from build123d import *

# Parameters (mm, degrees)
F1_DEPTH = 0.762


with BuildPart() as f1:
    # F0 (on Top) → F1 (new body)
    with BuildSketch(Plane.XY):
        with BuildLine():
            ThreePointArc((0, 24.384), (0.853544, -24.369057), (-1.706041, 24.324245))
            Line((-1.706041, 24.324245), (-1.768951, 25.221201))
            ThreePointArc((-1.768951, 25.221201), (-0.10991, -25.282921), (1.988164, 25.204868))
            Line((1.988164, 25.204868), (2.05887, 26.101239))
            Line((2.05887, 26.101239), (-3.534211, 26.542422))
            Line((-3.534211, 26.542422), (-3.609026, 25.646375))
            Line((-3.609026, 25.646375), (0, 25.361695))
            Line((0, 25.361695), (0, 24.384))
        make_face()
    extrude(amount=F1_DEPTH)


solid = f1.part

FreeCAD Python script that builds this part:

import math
import FreeCAD as App
import Part
import Sketcher
from FreeCAD import Vector
Q = App.Units.Quantity

doc = App.newDocument("Part")
params = doc.addObject("Spreadsheet::Sheet", "Params")
for row, (alias, value) in enumerate([
    ("sketch1_radius", "0.96 in"),
    ("pad1_length", "0.03 in"),
], start=1):
    params.set(f"A{row}", alias)
    params.set(f"B{row}", "=" + value)
    params.setAlias(f"B{row}", alias)

body = doc.addObject("PartDesign::Body", "Body")

sketch1 = body.newObject("Sketcher::SketchObject", "Sketch")
sketch1.AttachmentSupport = (doc.getObject("XY_Plane"), [""])
sketch1.MapMode = "FlatFace"
sketch1.addGeometry([
    Part.ArcOfCircle(Part.Circle(Vector(-0.000004, 0, 0), Vector(0, 0, 1), 24.384), math.radians(94.012001), math.radians(449.99999)),
    Part.LineSegment(Vector(-1.706041, 24.324245, 0), Vector(-1.768951, 25.221201, 0)),
    Part.ArcOfCircle(Part.Circle(Vector(0, 0, 0), Vector(0, 0, 1), 25.28316), math.radians(94.01201), math.radians(445.489838)),
    Part.LineSegment(Vector(1.988164, 25.204868, 0), Vector(2.05887, 26.101239, 0)),
    Part.LineSegment(Vector(2.05887, 26.101239, 0), Vector(-3.534211, 26.542422, 0)),
    Part.LineSegment(Vector(-3.534211, 26.542422, 0), Vector(-3.609026, 25.646375, 0)),
    Part.LineSegment(Vector(-3.609026, 25.646375, 0), Vector(0, 25.361695, 0)),
    Part.LineSegment(Vector(0, 25.361695, 0), Vector(0, 24.384, 0)),
], False)
sketch1.addConstraint([
    Sketcher.Constraint("Coincident", 0, 1, 1, 1),
    Sketcher.Constraint("Coincident", 1, 2, 2, 1),
    Sketcher.Constraint("Coincident", 2, 2, 3, 1),
    Sketcher.Constraint("Coincident", 3, 2, 4, 1),
    Sketcher.Constraint("Coincident", 4, 2, 5, 1),
    Sketcher.Constraint("Coincident", 5, 2, 6, 1),
    Sketcher.Constraint("Coincident", 6, 2, 7, 1),
    Sketcher.Constraint("Coincident", 7, 2, 0, 2),
    Sketcher.Constraint("Vertical", 7),
    Sketcher.Constraint("Coincident", 0, 3, -1, 1),
    Sketcher.Constraint("Coincident", 2, 3, -1, 1),
    Sketcher.Constraint("PointOnObject", 6, 2, -2),
    Sketcher.Constraint("Radius", 0, Q("0.96 in")),
    Sketcher.Constraint("Radius", 2, Q("0.9954 in")),
    Sketcher.Constraint("Distance", 3, Q("0.0353998 in")),
    Sketcher.Constraint("Distance", 5, Q("0.0354002 in")),
    Sketcher.Constraint("DistanceY", -1, 1, 5, 2, Q("1.0096998 in")),
    Sketcher.Constraint("DistanceX", 4, 2, 3, 2, Q("0.2202 in")),
    Sketcher.Constraint("DistanceY", -1, 1, 1, 2, 25.221201),
    Sketcher.Constraint("DistanceY", 7, 2, 7, 1, 0.977695),
    Sketcher.Constraint("DistanceX", 0, 1, -1, 1, 1.706041),
    Sketcher.Constraint("DistanceY", -1, 1, 2, 2, 25.204868),
    Sketcher.Constraint("DistanceX", -1, 1, 3, 2, 2.05887),
    Sketcher.Constraint("DistanceY", -1, 1, 4, 2, 26.542422),
])
sketch1.setExpression("Constraints[12]", "Params.sketch1_radius")
pad1 = body.newObject("PartDesign::Pad", "Pad")
pad1.Profile = sketch1
pad1.setExpression("Length", "Params.pad1_length")

doc.recompute()
